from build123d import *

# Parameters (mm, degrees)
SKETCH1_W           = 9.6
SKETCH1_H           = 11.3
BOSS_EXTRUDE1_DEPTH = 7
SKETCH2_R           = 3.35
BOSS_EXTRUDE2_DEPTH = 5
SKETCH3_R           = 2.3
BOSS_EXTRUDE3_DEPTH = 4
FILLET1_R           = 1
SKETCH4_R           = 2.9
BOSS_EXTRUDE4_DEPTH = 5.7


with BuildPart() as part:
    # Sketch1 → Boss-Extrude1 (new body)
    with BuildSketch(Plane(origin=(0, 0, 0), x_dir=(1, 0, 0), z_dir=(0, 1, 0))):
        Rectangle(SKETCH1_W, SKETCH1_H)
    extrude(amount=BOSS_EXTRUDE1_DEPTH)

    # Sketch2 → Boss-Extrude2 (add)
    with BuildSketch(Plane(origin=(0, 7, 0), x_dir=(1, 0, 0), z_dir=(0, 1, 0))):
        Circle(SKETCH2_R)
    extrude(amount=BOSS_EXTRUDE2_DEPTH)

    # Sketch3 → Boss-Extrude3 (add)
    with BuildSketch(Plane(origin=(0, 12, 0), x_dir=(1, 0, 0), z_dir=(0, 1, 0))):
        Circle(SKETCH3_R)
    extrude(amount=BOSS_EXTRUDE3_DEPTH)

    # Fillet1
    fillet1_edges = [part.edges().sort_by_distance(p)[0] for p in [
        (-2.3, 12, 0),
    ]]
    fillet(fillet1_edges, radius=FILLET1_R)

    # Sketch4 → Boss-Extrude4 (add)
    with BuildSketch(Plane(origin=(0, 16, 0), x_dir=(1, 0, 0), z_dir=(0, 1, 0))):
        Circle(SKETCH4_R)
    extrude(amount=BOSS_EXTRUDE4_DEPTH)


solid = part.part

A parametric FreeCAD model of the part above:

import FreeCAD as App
import Part
import Sketcher
from FreeCAD import Vector


def edges_at(feature, points):
    """Names of the edges that pass closest to the given points."""
    edges = feature.Shape.Edges
    near = lambda p: min(range(len(edges)), key=lambda i: edges[i].distToShape(Part.Vertex(*p))[0])
    return sorted({f"Edge{near(p) + 1}" for p in points})

doc = App.newDocument("Part")
body = doc.addObject("PartDesign::Body", "Body")

sketch1 = doc.addObject("Sketcher::SketchObject", "Sketch")
body.addObject(sketch1)
sketch1.AttachmentSupport = (doc.XZ_Plane, [""])
sketch1.MapMode = "FlatFace"
sketch1.addGeometry([
    Part.LineSegment(Vector(-4.8, -5.65, 0), Vector(-4.8, 5.65, 0)),
    Part.LineSegment(Vector(-4.8, 5.65, 0), Vector(4.8, 5.65, 0)),
    Part.LineSegment(Vector(4.8, 5.65, 0), Vector(4.8, -5.65, 0)),
    Part.LineSegment(Vector(4.8, -5.65, 0), Vector(-4.8, -5.65, 0)),
], False)
sketch1.addConstraint([
    Sketcher.Constraint("Coincident", 0, 2, 1, 1),
    Sketcher.Constraint("Coincident", 1, 2, 2, 1),
    Sketcher.Constraint("Coincident", 2, 2, 3, 1),
    Sketcher.Constraint("Coincident", 3, 2, 0, 1),
    Sketcher.Constraint("Vertical", 0),
    Sketcher.Constraint("Horizontal", 1),
    Sketcher.Constraint("Vertical", 2),
    Sketcher.Constraint("Horizontal", 3),
    Sketcher.Constraint("Symmetric", 0, 2, 2, 2, -1, 1),
    Sketcher.Constraint("DistanceX", 1, 1, 1, 2, 9.6),
    Sketcher.Constraint("DistanceY", 0, 1, 0, 2, 11.3),
])
pad1 = doc.addObject("PartDesign::Pad", "Pad")
body.addObject(pad1)
pad1.Profile = sketch1
pad1.Length = 7
pad1.Reversed = True

sketch2 = doc.addObject("Sketcher::SketchObject", "Sketch001")
body.addObject(sketch2)
sketch2.AttachmentSupport = (doc.XZ_Plane, [""])
sketch2.MapMode = "FlatFace"
sketch2.AttachmentOffset = App.Placement(Vector(0, 0, -7), App.Rotation())
sketch2.addGeometry(Part.Circle(Vector(0, 0, 0), Vector(0, 0, 1), 3.35), False)
sketch2.addConstraint([
    Sketcher.Constraint("Coincident", 0, 3, -1, 1),
    Sketcher.Constraint("Diameter", 0, 6.7),
])
pad2 = doc.addObject("PartDesign::Pad", "Pad001")
body.addObject(pad2)
pad2.Profile = sketch2
pad2.Length = 5
pad2.Reversed = True

sketch3 = doc.addObject("Sketcher::SketchObject", "Sketch002")
body.addObject(sketch3)
sketch3.AttachmentSupport = (doc.XZ_Plane, [""])
sketch3.MapMode = "FlatFace"
sketch3.AttachmentOffset = App.Placement(Vector(0, 0, -12), App.Rotation())
sketch3.addGeometry(Part.Circle(Vector(0, 0, 0), Vector(0, 0, 1), 2.3), False)
sketch3.addConstraint([
    Sketcher.Constraint("Coincident", 0, 3, -1, 1),
    Sketcher.Constraint("Diameter", 0, 4.6),
])
pad3 = doc.addObject("PartDesign::Pad", "Pad002")
body.addObject(pad3)
pad3.Profile = sketch3
pad3.Length = 4
pad3.Reversed = True
doc.recompute()

fillet = doc.addObject("PartDesign::Fillet", "Fillet")
body.addObject(fillet)
fillet.Base = (pad3, edges_at(pad3, [(-2.3, 12, 0)]))
fillet.Radius = 1

sketch4 = doc.addObject("Sketcher::SketchObject", "Sketch003")
body.addObject(sketch4)
sketch4.AttachmentSupport = (doc.XZ_Plane, [""])
sketch4.MapMode = "FlatFace"
sketch4.AttachmentOffset = App.Placement(Vector(0, 0, -16), App.Rotation())
sketch4.addGeometry(Part.Circle(Vector(0, 0, 0), Vector(0, 0, 1), 2.9), False)
sketch4.addConstraint([
    Sketcher.Constraint("Coincident", 0, 3, -1, 1),
    Sketcher.Constraint("Diameter", 0, 5.8),
])
pad4 = doc.addObject("PartDesign::Pad", "Pad003")
body.addObject(pad4)
pad4.Profile = sketch4
pad4.Length = 5.7
pad4.Reversed = True

doc.recompute()
